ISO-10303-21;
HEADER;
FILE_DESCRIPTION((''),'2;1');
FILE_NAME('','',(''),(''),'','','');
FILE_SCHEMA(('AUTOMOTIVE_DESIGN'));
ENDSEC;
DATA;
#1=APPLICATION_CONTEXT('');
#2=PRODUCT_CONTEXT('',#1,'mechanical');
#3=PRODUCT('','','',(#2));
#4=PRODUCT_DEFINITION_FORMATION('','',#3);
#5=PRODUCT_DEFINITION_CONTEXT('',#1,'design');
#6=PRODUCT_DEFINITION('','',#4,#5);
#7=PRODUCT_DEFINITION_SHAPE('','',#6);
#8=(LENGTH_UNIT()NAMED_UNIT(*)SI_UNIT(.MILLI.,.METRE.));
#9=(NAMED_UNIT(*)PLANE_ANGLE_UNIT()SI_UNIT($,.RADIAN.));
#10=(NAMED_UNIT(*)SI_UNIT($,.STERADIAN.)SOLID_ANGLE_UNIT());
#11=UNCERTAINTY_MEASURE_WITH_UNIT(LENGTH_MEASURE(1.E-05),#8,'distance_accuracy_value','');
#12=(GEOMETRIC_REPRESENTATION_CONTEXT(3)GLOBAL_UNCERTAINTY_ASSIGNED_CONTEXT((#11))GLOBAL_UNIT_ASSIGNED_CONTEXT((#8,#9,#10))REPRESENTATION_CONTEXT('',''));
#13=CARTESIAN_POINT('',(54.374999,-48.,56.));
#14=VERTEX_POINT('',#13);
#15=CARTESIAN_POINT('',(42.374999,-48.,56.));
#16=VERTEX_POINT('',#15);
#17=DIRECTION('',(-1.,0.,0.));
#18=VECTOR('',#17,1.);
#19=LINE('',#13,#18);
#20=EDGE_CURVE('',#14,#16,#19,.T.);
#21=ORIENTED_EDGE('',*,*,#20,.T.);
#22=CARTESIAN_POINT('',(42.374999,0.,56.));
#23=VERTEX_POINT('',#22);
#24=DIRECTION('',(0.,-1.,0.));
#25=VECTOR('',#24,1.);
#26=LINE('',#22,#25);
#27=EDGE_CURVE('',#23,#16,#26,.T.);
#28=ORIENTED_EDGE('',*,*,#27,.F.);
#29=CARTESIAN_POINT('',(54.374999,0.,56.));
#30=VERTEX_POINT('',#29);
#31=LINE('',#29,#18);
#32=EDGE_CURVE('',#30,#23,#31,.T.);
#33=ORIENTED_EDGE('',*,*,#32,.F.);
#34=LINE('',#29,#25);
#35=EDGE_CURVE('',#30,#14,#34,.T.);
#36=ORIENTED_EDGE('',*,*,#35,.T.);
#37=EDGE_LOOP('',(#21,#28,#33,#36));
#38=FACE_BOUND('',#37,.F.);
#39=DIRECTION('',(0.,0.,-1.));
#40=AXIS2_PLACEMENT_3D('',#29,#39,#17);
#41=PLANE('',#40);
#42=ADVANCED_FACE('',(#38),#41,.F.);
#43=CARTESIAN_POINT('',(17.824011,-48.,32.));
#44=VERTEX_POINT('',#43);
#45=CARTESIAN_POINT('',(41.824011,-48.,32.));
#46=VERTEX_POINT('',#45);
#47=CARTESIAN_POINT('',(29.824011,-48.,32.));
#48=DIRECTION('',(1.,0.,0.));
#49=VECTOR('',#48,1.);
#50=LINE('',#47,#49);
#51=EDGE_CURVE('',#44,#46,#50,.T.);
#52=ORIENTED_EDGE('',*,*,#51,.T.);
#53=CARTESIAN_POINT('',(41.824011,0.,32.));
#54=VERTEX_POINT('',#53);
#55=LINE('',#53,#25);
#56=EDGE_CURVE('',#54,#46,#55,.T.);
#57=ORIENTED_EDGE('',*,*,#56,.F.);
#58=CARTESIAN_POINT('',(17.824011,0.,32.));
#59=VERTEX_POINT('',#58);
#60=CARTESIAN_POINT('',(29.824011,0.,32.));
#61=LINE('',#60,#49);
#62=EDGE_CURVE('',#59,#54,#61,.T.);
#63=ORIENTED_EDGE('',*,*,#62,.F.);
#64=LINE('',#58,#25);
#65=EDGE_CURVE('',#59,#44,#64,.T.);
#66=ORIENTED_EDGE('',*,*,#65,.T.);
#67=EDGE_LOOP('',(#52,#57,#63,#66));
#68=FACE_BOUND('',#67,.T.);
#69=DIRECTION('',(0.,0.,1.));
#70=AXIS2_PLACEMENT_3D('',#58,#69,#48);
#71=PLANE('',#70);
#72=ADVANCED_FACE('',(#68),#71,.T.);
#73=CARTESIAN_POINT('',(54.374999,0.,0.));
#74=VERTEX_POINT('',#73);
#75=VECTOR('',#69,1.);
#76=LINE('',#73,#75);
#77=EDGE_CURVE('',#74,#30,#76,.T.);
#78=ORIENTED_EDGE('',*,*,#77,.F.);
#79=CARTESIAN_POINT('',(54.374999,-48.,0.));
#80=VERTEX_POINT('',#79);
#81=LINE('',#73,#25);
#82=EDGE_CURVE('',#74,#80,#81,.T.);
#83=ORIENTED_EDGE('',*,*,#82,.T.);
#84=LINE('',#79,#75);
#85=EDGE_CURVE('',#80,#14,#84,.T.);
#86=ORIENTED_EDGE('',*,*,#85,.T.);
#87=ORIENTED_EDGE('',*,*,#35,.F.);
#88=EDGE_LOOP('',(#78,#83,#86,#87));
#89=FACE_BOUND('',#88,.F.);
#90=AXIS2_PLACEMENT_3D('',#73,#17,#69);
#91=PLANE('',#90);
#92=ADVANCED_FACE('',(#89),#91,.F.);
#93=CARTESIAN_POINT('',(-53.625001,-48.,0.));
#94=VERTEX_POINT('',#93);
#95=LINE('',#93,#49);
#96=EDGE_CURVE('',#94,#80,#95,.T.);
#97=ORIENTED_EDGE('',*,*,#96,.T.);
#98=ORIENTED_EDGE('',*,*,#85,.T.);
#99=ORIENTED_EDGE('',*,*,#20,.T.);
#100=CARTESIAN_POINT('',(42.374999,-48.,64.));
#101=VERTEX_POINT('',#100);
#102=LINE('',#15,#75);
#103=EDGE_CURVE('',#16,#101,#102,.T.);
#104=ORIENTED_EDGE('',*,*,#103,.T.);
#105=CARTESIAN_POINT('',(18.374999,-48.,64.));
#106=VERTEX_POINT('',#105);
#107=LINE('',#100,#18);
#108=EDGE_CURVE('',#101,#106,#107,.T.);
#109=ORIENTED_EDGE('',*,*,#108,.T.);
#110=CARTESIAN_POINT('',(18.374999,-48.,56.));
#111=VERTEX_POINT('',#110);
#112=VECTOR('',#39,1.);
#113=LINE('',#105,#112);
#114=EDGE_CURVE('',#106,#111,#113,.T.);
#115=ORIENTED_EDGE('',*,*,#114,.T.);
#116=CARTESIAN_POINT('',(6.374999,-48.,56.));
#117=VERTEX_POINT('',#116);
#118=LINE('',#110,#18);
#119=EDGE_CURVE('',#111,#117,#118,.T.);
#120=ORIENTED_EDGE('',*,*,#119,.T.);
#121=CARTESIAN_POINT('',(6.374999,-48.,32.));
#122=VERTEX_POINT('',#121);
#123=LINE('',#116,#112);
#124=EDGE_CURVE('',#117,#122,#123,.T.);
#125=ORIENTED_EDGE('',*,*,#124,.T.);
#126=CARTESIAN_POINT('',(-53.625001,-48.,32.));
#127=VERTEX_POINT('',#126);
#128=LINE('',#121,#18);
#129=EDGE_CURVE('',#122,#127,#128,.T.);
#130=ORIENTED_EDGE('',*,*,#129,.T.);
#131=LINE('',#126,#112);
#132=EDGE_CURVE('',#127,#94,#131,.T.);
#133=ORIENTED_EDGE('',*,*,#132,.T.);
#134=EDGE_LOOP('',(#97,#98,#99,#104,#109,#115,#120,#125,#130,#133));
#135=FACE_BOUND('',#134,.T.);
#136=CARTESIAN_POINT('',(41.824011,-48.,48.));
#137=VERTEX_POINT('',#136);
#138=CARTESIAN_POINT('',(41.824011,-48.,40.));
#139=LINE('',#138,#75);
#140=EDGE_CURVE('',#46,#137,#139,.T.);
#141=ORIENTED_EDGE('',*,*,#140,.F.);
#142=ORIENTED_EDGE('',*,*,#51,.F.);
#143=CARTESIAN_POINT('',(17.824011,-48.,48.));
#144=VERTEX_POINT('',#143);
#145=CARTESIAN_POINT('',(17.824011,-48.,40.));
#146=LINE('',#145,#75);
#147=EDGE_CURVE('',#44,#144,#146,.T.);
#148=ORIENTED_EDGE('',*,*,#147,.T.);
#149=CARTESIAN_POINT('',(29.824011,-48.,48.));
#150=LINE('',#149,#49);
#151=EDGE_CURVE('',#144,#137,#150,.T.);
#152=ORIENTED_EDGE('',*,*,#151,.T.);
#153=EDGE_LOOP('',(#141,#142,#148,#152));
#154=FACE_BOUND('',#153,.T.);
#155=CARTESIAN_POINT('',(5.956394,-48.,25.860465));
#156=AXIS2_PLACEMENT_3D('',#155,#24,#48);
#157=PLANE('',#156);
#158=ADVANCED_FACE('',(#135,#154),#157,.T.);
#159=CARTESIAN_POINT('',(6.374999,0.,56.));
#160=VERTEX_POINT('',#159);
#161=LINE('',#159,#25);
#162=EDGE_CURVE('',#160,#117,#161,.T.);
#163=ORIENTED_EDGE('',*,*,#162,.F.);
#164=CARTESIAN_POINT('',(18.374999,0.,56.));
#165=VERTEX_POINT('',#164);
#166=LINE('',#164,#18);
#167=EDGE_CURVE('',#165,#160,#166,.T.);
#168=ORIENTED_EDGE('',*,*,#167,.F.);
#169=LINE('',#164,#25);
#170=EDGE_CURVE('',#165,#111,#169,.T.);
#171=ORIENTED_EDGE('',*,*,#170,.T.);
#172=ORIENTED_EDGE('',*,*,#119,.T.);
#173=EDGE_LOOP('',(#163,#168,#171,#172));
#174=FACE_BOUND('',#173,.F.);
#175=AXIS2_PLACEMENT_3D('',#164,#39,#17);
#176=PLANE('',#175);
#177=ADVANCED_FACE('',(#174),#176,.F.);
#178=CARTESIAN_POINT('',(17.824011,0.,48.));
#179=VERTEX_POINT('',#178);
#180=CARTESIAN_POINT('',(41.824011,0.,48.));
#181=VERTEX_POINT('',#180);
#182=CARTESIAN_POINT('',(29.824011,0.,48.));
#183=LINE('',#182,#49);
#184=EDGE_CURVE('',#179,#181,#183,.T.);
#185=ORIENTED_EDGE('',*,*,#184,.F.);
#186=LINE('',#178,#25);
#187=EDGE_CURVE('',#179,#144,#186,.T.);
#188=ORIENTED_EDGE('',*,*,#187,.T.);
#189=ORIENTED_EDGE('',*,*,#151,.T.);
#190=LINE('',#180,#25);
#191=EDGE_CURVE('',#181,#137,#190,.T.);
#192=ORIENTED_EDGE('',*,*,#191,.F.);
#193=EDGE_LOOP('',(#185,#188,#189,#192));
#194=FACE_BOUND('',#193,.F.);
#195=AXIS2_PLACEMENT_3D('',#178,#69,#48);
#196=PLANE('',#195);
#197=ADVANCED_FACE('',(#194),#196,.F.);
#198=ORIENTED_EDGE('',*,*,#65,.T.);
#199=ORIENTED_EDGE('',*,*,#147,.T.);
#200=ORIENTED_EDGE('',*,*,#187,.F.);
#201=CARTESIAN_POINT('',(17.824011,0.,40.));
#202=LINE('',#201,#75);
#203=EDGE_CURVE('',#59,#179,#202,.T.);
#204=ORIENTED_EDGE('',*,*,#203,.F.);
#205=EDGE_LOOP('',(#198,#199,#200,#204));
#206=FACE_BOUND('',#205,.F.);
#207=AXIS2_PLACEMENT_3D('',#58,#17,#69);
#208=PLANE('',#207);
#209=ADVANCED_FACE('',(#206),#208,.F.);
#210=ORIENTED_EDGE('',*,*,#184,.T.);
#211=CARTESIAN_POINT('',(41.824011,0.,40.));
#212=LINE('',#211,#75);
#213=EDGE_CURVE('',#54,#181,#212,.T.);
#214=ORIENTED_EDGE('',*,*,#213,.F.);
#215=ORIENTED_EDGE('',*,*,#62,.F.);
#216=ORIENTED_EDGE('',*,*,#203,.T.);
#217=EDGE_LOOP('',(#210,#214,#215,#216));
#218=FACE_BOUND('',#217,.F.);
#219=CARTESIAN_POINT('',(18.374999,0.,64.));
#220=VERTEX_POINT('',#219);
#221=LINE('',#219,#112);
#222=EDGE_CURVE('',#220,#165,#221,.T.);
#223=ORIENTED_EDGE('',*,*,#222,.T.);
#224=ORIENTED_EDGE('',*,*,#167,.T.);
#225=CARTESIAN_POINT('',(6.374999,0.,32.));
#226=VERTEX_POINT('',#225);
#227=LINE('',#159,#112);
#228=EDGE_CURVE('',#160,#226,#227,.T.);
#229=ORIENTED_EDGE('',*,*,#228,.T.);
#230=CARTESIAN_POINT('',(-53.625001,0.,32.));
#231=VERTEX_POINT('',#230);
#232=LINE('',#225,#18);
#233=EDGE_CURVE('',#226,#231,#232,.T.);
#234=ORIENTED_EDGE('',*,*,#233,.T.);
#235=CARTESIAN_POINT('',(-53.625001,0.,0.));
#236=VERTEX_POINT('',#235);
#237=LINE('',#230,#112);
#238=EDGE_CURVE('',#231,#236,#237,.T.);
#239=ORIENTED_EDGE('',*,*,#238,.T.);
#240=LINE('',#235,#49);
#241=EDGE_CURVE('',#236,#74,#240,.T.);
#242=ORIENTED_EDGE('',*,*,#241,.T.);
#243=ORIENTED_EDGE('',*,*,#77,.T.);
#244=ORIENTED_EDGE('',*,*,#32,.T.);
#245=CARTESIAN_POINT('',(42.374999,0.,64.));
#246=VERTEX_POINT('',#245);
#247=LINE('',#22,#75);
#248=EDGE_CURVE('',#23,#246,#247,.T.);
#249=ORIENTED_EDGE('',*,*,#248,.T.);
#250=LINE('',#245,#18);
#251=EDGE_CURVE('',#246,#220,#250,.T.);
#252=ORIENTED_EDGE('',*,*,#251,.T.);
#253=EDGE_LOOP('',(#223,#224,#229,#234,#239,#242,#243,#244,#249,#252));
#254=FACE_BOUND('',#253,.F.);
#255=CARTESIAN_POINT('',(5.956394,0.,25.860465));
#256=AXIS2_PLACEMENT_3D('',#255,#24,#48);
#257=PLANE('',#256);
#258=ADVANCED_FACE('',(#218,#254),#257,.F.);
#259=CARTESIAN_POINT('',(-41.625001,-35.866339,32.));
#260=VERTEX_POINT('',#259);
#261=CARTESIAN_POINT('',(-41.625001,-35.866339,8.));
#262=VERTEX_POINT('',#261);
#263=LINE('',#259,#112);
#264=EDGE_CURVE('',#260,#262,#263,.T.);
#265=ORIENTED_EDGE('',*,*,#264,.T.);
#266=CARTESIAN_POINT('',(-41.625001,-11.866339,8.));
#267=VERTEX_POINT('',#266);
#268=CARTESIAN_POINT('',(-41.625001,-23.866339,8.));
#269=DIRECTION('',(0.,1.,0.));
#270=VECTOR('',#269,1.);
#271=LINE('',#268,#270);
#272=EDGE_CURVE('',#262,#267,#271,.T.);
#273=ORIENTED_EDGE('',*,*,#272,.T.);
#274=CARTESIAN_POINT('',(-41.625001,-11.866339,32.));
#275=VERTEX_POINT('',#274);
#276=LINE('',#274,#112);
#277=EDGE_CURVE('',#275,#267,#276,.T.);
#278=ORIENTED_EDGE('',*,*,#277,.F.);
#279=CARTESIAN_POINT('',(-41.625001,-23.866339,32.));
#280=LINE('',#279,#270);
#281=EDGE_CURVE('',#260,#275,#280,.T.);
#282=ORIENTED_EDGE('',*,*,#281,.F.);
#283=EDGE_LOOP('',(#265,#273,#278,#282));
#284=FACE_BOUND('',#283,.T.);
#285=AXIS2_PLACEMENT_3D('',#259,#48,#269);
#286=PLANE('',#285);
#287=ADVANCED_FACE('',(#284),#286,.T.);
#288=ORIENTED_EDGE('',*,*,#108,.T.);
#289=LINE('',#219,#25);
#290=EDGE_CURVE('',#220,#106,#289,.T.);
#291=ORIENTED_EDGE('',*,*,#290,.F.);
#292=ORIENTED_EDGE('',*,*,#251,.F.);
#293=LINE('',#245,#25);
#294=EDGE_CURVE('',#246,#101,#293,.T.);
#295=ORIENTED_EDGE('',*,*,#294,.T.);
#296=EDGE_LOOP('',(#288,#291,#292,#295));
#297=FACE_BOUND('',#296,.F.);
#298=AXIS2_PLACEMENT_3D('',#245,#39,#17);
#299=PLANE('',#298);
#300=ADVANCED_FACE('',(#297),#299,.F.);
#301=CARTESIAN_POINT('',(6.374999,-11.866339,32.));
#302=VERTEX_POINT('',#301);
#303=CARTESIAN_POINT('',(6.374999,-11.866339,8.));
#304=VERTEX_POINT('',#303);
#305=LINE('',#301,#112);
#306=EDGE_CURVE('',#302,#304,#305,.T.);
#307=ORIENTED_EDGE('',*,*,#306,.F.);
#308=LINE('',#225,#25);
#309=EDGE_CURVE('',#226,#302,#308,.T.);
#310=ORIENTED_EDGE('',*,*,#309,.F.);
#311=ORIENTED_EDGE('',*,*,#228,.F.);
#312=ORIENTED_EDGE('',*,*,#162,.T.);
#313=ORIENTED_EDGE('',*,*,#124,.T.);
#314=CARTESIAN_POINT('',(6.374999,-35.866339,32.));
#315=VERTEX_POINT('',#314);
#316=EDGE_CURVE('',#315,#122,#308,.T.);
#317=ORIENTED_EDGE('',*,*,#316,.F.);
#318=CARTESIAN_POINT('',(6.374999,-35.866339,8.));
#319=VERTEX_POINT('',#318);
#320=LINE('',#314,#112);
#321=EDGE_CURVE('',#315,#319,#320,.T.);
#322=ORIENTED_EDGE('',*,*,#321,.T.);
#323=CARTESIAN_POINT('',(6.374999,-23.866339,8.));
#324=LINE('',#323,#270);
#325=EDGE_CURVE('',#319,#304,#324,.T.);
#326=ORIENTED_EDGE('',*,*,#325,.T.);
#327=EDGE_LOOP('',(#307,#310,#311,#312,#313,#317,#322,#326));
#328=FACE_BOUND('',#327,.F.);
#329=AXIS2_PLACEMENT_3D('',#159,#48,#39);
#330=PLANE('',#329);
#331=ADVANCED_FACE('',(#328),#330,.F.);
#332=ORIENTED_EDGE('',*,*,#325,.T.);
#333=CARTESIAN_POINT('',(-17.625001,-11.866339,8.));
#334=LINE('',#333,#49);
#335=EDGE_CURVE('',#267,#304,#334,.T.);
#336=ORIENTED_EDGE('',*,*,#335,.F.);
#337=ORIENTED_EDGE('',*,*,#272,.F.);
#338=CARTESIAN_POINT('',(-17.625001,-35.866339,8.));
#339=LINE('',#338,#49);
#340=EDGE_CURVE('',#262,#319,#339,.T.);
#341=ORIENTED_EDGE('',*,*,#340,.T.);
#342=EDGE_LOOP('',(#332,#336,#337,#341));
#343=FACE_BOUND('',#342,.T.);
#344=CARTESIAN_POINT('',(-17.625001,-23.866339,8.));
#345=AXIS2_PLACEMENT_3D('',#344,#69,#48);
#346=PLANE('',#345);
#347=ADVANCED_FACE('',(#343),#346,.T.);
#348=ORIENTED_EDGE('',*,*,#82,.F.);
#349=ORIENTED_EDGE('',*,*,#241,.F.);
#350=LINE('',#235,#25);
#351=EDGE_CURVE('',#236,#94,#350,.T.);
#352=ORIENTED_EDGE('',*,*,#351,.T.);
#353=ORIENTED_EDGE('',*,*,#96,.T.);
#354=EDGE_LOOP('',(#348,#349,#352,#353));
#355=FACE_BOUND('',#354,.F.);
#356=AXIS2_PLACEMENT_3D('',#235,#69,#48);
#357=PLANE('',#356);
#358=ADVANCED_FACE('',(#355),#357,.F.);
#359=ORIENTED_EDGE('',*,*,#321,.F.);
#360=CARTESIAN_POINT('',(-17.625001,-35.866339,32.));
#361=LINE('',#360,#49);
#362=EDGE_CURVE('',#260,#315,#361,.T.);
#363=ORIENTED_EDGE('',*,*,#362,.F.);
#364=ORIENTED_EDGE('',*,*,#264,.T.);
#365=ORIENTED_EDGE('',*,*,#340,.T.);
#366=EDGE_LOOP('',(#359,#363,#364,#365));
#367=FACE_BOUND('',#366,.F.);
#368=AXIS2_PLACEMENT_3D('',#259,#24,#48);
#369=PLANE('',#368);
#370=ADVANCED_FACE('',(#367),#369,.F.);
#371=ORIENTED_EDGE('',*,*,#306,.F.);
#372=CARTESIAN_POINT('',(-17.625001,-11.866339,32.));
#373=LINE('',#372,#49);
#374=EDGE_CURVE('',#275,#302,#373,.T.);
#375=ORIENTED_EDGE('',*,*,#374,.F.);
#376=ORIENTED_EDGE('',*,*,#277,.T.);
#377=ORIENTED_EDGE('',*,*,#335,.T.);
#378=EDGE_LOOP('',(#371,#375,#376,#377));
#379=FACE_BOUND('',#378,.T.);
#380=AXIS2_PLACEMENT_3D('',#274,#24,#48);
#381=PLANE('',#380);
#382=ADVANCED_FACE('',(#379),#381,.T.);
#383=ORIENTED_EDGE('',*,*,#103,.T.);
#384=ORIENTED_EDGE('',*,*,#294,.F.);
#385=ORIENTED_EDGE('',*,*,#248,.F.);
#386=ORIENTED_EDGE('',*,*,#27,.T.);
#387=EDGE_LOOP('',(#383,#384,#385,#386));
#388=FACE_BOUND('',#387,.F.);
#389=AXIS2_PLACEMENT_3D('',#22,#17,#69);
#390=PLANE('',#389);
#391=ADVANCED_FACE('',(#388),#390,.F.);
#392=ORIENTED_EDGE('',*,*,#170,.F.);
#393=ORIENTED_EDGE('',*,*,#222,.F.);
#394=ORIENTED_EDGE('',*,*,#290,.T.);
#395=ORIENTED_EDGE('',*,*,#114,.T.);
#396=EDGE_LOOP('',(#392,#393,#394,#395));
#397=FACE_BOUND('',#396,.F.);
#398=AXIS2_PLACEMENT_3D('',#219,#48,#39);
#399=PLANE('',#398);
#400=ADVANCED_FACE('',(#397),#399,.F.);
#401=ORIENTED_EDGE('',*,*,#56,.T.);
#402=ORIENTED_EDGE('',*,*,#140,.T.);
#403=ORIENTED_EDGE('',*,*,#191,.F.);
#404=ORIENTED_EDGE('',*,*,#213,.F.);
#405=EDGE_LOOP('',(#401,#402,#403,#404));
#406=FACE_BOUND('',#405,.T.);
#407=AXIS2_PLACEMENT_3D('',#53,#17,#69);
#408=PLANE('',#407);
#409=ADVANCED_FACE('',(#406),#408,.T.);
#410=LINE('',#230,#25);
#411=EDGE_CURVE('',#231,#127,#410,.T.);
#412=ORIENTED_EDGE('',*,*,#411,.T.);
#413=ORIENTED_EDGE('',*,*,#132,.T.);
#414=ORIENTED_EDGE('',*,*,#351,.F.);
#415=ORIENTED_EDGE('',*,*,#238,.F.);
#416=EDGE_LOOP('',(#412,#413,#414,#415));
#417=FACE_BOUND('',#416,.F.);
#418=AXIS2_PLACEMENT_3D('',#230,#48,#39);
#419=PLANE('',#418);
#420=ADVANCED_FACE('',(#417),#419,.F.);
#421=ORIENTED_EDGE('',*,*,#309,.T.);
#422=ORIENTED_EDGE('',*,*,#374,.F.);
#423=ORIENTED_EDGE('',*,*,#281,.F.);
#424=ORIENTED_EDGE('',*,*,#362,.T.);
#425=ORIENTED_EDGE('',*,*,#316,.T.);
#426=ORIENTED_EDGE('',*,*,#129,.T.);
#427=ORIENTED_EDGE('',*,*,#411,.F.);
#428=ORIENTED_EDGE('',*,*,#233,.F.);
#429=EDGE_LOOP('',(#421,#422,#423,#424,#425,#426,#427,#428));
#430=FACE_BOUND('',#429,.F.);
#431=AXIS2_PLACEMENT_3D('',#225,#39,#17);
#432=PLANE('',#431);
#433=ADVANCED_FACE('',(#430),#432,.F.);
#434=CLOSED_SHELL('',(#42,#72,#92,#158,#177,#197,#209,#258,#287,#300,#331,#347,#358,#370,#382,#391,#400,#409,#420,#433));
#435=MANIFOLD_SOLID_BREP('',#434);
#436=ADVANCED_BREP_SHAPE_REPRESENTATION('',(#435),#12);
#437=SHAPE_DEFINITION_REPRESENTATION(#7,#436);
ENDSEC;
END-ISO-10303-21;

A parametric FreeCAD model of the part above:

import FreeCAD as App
import Part
import Sketcher
Q = App.Units.Quantity


def add_polygon(sketch, points):
    """Adds a closed chain of lines whose ends are joined by coincident constraints."""
    first, n = sketch.GeometryCount, len(points)
    for a, b in zip(points, points[1:] + points[:1]):
        sketch.addGeometry(Part.LineSegment(App.Vector(*a, 0), App.Vector(*b, 0)), False)
    for i in range(n):
        sketch.addConstraint(Sketcher.Constraint("Coincident", first + i, 2, first + (i + 1) % n, 1))

doc = App.newDocument("Part")
body = doc.addObject("PartDesign::Body", "Body")

# Sketch on XZ plane
sketch1 = body.newObject("Sketcher::SketchObject", "Sketch")
sketch1.AttachmentSupport = (doc.getObject("XZ_Plane"), [""])
sketch1.MapMode = "FlatFace"
add_polygon(sketch1, [(-53.625001, 32), (-53.625001, 0), (54.374999, 0), (54.374999, 56), (42.374999, 56), (42.374999, 64), (18.374999, 64), (18.374999, 56), (6.374999, 56), (6.374999, 32)])  # lines 0-9
add_polygon(sketch1, [(41.824011, 32), (17.824011, 32), (17.824011, 48), (41.824011, 48)])  # lines 10-13
sketch1.addConstraint([
    Sketcher.Constraint("Vertical", 0),
    Sketcher.Constraint("Horizontal", 1),
    Sketcher.Constraint("Vertical", 2),
    Sketcher.Constraint("Horizontal", 3),
    Sketcher.Constraint("Vertical", 4),
    Sketcher.Constraint("Horizontal", 5),
    Sketcher.Constraint("Vertical", 6),
    Sketcher.Constraint("Horizontal", 7),
    Sketcher.Constraint("Vertical", 8),
    Sketcher.Constraint("Horizontal", 9),
    Sketcher.Constraint("Horizontal", 10),
    Sketcher.Constraint("Vertical", 11),
    Sketcher.Constraint("Horizontal", 12),
    Sketcher.Constraint("Vertical", 13),
    Sketcher.Constraint("PointOnObject", 0, 2, -1),
    Sketcher.Constraint("Horizontal", 3, 2, 6, 2),
    Sketcher.Constraint("Horizontal", 9, 2, 10, 2),
    Sketcher.Constraint("Equal", 3, 7),
    Sketcher.Constraint("Equal", 5, 10),
    Sketcher.Constraint("Equal", 12, 8),
    Sketcher.Constraint("DistanceX", 1, 1, 1, 2, Q("108 mm")),
    Sketcher.Constraint("DistanceX", 3, 2, 3, 1, Q("12 mm")),
    Sketcher.Constraint("DistanceX", 5, 2, 5, 1, Q("24 mm")),
    Sketcher.Constraint("DistanceY", 0, 2, 0, 1, Q("32 mm")),
    Sketcher.Constraint("DistanceY", 4, 1, 4, 2, Q("8 mm")),
    Sketcher.Constraint("DistanceY", 11, 1, 11, 2, Q("16 mm")),
    Sketcher.Constraint("DistanceX", 0, 2, -1, 1, Q("53.625001 mm")),
    Sketcher.Constraint("DistanceX", -1, 1, 10, 2, Q("17.824011 mm")),
])
pad1 = body.newObject("PartDesign::Pad", "Pad")
pad1.Profile = sketch1
pad1.Length = 48

# Sketch on XY plane
sketch2 = body.newObject("Sketcher::SketchObject", "Sketch001")
sketch2.AttachmentSupport = (doc.getObject("XY_Plane"), [""])
sketch2.MapMode = "FlatFace"
sketch2.AttachmentOffset = App.Placement(App.Vector(0, 0, 32), App.Rotation())
add_polygon(sketch2, [(-41.625001, -11.866339), (-41.625001, -35.866339), (6.374999, -35.866339), (6.374999, -11.866339)])  # lines 0-3
sketch2.addConstraint([
    Sketcher.Constraint("Vertical", 0),
    Sketcher.Constraint("Horizontal", 1),
    Sketcher.Constraint("Vertical", 2),
    Sketcher.Constraint("Horizontal", 3),
    Sketcher.Constraint("DistanceX", 1, 1, 1, 2, Q("48 mm")),
    Sketcher.Constraint("DistanceY", 0, 2, 0, 1, Q("24 mm")),
    Sketcher.Constraint("DistanceX", 0, 2, -1, 1, Q("41.625001 mm")),
    Sketcher.Constraint("DistanceY", 0, 2, -1, 1, Q("35.866339 mm")),
])
pocket1 = body.newObject("PartDesign::Pocket", "Pocket")
pocket1.Profile = sketch2
pocket1.Length = 24

doc.recompute()
